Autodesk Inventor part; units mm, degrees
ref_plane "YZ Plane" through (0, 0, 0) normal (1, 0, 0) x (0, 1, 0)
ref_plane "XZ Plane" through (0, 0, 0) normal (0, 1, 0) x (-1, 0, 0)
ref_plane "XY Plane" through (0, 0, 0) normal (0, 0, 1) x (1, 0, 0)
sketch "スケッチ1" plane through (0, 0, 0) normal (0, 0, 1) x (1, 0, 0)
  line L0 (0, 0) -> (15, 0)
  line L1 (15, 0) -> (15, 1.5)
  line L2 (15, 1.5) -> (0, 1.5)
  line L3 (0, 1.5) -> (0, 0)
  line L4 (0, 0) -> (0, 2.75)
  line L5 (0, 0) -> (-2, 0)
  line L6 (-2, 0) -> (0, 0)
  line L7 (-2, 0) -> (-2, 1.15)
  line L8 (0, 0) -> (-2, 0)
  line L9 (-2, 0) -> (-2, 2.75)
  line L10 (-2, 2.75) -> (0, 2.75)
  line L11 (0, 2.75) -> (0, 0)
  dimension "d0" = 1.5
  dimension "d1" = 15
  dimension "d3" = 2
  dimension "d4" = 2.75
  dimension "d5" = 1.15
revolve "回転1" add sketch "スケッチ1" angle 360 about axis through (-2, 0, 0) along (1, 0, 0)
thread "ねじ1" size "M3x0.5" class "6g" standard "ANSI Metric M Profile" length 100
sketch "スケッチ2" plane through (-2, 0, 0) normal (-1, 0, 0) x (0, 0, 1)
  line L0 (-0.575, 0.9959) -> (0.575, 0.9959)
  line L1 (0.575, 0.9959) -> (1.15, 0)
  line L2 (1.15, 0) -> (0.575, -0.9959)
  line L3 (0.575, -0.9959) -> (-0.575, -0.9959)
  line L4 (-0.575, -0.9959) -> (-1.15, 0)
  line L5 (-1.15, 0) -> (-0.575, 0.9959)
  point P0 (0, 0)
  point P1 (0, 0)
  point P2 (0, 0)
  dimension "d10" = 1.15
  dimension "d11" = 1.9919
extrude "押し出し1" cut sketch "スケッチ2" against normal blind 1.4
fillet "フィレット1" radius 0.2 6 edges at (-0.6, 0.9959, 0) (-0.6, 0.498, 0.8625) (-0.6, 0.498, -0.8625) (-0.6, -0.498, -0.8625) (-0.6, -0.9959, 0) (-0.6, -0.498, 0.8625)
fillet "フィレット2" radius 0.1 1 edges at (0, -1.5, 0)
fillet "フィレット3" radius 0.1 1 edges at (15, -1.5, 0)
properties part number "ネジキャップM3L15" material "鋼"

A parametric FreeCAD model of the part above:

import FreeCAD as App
import Part
import Sketcher

V = App.Vector
Q = App.Units.Quantity


def edges_at(feature, points):
    """Names of the edges that pass closest to the given points."""
    edges = feature.Shape.Edges
    near = lambda p: min(range(len(edges)), key=lambda i: edges[i].distToShape(Part.Vertex(*p))[0])
    return sorted({f"Edge{near(p) + 1}" for p in points})


def add_polygon(sketch, points):
    """Adds a closed chain of lines whose ends are joined by coincident constraints."""
    first, n = sketch.GeometryCount, len(points)
    for a, b in zip(points, points[1:] + points[:1]):
        sketch.addGeometry(Part.LineSegment(App.Vector(*a, 0), App.Vector(*b, 0)), False)
    for i in range(n):
        sketch.addConstraint(Sketcher.Constraint("Coincident", first + i, 2, first + (i + 1) % n, 1))

doc = App.newDocument("Part")
body = doc.addObject("PartDesign::Body", "Body")

# Sketch on XY plane
sketch1 = doc.addObject("Sketcher::SketchObject", "Sketch")
body.addObject(sketch1)
sketch1.AttachmentSupport = (doc.XY_Plane, [""])
sketch1.MapMode = "FlatFace"
add_polygon(sketch1, [(15, 1.5), (0, 1.5), (0, 2.8), (-2, 2.8), (-2, 0), (15, 0)])  # lines 0-5
sketch1.addConstraint([
    Sketcher.Constraint("Horizontal", 0),
    Sketcher.Constraint("Vertical", 1),
    Sketcher.Constraint("Horizontal", 2),
    Sketcher.Constraint("Vertical", 3),
    Sketcher.Constraint("Horizontal", 4),
    Sketcher.Constraint("Vertical", 5),
    Sketcher.Constraint("PointOnObject", 0, 2, -2),
    Sketcher.Constraint("PointOnObject", 3, 2, -1),
    Sketcher.Constraint("DistanceX", 0, 2, 0, 1, Q("15 mm")),
    Sketcher.Constraint("DistanceX", 2, 2, 2, 1, Q("2 mm")),
    Sketcher.Constraint("DistanceY", 5, 1, 5, 2, Q("1.5 mm")),
    Sketcher.Constraint("DistanceY", 3, 2, 3, 1, Q("2.75 mm")),
])
revolution = doc.addObject("PartDesign::Revolution", "Revolution")
body.addObject(revolution)
revolution.Profile = sketch1
revolution.ReferenceAxis = (sketch1, ["H_Axis"])
revolution.Angle = 360

# Sketch on YZ plane
sketch2 = doc.addObject("Sketcher::SketchObject", "Sketch001")
body.addObject(sketch2)
sketch2.AttachmentSupport = (doc.YZ_Plane, [""])
sketch2.MapMode = "FlatFace"
sketch2.AttachmentOffset = App.Placement(V(0, 0, -2), App.Rotation())
add_polygon(sketch2, [(1, 0.6), (1, -0.6), (0, -1.1), (-1, -0.6), (-1, 0.6), (0, 1.1)])  # lines 0-5
sketch2.addConstraint([
    Sketcher.Constraint("Vertical", 0),
    Sketcher.Constraint("Vertical", 3),
    Sketcher.Constraint("Symmetric", 0, 2, 3, 2, -1, 1),
    Sketcher.Constraint("Symmetric", 1, 2, 4, 2, -1, 1),
    Sketcher.Constraint("PointOnObject", 1, 2, -2),
    Sketcher.Constraint("Parallel", 2, 5),
    Sketcher.Constraint("Horizontal", 0, 2, 2, 2),
    Sketcher.Constraint("DistanceY", 0, 2, 0, 1, Q("1.15 mm")),
    Sketcher.Constraint("Distance", 1, Q("1.15 mm")),
    Sketcher.Constraint("DistanceY", 1, 2, -1, 1, Q("1.15 mm")),
])
pocket1 = doc.addObject("PartDesign::Pocket", "Pocket")
body.addObject(pocket1)
pocket1.Profile = sketch2
pocket1.Length = 1.4
pocket1.Reversed = True
doc.recompute()

fillet = doc.addObject("PartDesign::Fillet", "Fillet")
body.addObject(fillet)
fillet.Base = (pocket1, edges_at(pocket1, [
    (-0.6, 0.996, 0),
    (-0.6, 0.498, 0.863),
    (-0.6, 0.498, -0.863),
    (-0.6, -0.498, -0.863),
    (-0.6, -0.996, 0),
    (-0.6, -0.498, 0.863),
]))
fillet.Radius = 0.2
doc.recompute()

fillet2 = doc.addObject("PartDesign::Fillet", "Fillet001")
body.addObject(fillet2)
fillet2.Base = (fillet, edges_at(fillet, [(0, -1.5, 0)]))
fillet2.Radius = 0.1
doc.recompute()

fillet3 = doc.addObject("PartDesign::Fillet", "Fillet002")
body.addObject(fillet3)
fillet3.Base = (fillet2, edges_at(fillet2, [(15, -1.5, 0)]))
fillet3.Radius = 0.1

doc.recompute()
